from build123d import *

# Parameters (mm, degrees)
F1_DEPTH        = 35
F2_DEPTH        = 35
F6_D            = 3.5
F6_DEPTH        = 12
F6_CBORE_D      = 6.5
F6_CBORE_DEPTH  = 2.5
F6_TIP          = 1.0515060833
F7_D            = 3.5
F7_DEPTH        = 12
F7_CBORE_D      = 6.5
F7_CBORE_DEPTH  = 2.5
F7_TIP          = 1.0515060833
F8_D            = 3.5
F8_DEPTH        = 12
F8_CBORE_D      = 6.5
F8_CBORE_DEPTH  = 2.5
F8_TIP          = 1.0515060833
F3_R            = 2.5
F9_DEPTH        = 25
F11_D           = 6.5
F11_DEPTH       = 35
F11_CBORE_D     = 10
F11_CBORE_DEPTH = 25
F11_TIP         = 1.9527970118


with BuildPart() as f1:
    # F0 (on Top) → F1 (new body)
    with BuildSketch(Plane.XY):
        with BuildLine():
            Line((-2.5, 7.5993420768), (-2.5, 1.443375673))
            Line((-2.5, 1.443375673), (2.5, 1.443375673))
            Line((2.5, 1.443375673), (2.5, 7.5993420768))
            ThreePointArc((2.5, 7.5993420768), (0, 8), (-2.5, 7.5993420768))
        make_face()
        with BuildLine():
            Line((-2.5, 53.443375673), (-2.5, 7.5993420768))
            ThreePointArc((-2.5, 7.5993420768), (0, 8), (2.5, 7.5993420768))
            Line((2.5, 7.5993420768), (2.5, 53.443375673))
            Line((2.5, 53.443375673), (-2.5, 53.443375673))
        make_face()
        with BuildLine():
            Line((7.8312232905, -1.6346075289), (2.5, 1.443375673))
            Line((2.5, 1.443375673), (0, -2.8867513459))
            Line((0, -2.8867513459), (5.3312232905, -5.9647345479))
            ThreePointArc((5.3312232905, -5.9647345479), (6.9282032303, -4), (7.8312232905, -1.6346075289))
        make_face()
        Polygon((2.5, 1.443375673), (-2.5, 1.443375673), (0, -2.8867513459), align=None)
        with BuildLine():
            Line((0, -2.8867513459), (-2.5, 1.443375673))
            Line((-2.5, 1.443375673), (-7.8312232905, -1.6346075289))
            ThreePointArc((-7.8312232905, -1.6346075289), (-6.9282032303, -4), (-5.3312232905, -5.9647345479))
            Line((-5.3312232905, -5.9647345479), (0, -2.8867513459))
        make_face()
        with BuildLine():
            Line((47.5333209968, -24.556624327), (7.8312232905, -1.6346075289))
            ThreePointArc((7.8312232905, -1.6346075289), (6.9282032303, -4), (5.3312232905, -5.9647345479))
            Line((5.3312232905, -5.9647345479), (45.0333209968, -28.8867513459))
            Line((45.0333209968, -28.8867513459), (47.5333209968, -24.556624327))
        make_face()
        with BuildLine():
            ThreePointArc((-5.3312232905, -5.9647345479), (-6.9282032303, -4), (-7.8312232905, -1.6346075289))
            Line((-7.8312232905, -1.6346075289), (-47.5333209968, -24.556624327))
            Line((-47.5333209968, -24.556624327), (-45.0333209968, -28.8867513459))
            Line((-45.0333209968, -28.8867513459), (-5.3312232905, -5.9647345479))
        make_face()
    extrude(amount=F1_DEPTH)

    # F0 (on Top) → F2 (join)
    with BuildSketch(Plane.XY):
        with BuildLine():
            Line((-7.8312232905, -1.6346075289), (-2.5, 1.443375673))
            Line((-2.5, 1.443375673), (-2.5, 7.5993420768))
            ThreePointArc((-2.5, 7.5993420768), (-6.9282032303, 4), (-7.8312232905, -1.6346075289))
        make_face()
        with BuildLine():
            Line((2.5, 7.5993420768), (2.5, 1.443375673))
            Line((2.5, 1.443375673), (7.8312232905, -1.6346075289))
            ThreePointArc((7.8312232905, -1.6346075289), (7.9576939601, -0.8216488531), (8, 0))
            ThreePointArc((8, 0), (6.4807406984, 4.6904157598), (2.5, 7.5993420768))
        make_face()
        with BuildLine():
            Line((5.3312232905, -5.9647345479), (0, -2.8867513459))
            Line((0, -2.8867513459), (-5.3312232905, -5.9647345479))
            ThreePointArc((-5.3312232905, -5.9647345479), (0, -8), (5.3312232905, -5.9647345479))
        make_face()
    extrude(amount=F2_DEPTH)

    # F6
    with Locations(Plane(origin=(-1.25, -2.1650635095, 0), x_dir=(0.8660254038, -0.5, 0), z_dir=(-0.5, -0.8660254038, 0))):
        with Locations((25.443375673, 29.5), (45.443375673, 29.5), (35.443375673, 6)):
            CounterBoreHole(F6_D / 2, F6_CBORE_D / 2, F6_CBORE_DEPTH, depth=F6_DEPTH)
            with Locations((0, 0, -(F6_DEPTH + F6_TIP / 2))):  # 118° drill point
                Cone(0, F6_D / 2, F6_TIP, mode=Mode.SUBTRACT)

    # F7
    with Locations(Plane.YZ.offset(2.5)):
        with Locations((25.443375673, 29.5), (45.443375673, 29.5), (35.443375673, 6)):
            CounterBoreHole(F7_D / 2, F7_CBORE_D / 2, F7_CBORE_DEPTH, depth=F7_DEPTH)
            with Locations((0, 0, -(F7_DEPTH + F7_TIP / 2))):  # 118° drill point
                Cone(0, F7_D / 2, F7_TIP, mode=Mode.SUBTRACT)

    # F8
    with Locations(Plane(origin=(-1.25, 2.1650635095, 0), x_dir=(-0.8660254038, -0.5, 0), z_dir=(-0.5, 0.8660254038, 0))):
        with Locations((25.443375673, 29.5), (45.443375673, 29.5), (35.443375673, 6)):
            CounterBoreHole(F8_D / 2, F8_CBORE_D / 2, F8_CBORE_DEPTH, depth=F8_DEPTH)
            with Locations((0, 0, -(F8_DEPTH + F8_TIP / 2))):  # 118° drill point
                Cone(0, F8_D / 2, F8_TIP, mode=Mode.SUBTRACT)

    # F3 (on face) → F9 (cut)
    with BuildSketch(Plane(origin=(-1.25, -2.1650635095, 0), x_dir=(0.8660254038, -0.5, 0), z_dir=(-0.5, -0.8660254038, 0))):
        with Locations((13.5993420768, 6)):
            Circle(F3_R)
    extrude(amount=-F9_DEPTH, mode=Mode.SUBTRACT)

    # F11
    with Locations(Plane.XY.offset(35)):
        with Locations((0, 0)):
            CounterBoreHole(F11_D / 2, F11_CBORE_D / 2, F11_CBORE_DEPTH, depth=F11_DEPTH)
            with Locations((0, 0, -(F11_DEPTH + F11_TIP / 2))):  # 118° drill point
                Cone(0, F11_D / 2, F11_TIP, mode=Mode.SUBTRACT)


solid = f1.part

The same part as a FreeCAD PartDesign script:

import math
import FreeCAD as App
import Part
import Sketcher

V = App.Vector
Q = App.Units.Quantity


def add_polygon(sketch, points):
    """Adds a closed chain of lines whose ends are joined by coincident constraints."""
    first, n = sketch.GeometryCount, len(points)
    for a, b in zip(points, points[1:] + points[:1]):
        sketch.addGeometry(Part.LineSegment(App.Vector(*a, 0), App.Vector(*b, 0)), False)
    for i in range(n):
        sketch.addConstraint(Sketcher.Constraint("Coincident", first + i, 2, first + (i + 1) % n, 1))

doc = App.newDocument("Part")
body = doc.addObject("PartDesign::Body", "Body")

sketch1 = doc.addObject("Sketcher::SketchObject", "Sketch")
body.addObject(sketch1)
sketch1.AttachmentSupport = (doc.XY_Plane, [""])
sketch1.MapMode = "FlatFace"
add_polygon(sketch1, [(2.5, 1.443376), (2.5, 53.443376), (-2.5, 53.443376), (-2.5, 1.443376), (-7.831223, -1.634608), (-47.533321, -24.556624), (-45.033321, -28.886751), (-5.331223, -5.964735), (0, -2.886751), (5.331223, -5.964735), (45.033321, -28.886751), (47.533321, -24.556624), (7.831223, -1.634608)])
sketch1.addConstraint(Sketcher.Constraint("Vertical", 0))
sketch1.addConstraint(Sketcher.Constraint("Horizontal", 1))
sketch1.addConstraint(Sketcher.Constraint("Vertical", 2))
sketch1.addConstraint(Sketcher.Constraint("Symmetric", 6, 2, 8, 2, -2))
sketch1.addConstraint(Sketcher.Constraint("Symmetric", 5, 2, 9, 2, -2))
sketch1.addConstraint(Sketcher.Constraint("Symmetric", 4, 2, 10, 2, -2))
sketch1.addConstraint(Sketcher.Constraint("Symmetric", 3, 2, 11, 2, -2))
sketch1.addConstraint(Sketcher.Constraint("Symmetric", 2, 2, 12, 2, -2))
sketch1.addConstraint(Sketcher.Constraint("PointOnObject", 7, 2, -2))
sketch1.addConstraint(Sketcher.Constraint("Parallel", 3, 4))
sketch1.addConstraint(Sketcher.Constraint("Perpendicular", 4, 5))
sketch1.addConstraint(Sketcher.Constraint("Perpendicular", 5, 6))
sketch1.addConstraint(Sketcher.Constraint("Parallel", 6, 7))
sketch1.addConstraint(Sketcher.Constraint("Equal", 4, 6))
sketch1.addConstraint(Sketcher.Constraint("Equal", 3, 7))
sketch1.addConstraint(Sketcher.Constraint("DistanceX", 1, 2, 1, 1, Q("5 mm")))
sketch1.addConstraint(Sketcher.Constraint("DistanceY", 0, 1, 0, 2, Q("52 mm")))
sketch1.addConstraint(Sketcher.Constraint("Angle", 3, Q("-150 deg")))
sketch1.addConstraint(Sketcher.Constraint("DistanceY", 4, 2, 2, 2, Q("26 mm")))
sketch1.addConstraint(Sketcher.Constraint("DistanceY", 5, 2, -1, 1, Q("28.886751 mm")))
sketch1.addConstraint(Sketcher.Constraint("DistanceY", 6, 2, 2, 2, Q("7.40811 mm")))
pad1 = doc.addObject("PartDesign::Pad", "Pad")
body.addObject(pad1)
pad1.Profile = sketch1
pad1.Length = 35

sketch2 = doc.addObject("Sketcher::SketchObject", "Sketch001")
body.addObject(sketch2)
sketch2.AttachmentSupport = (doc.XY_Plane, [""])
sketch2.MapMode = "FlatFace"
sketch2.addGeometry(Part.LineSegment(V(-7.831223, -1.634608, 0), V(-2.5, 1.443376, 0)), False)
sketch2.addGeometry(Part.LineSegment(V(-2.5, 1.443376, 0), V(-2.5, 7.599342, 0)), False)
sketch2.addGeometry(Part.ArcOfCircle(Part.Circle(V(0, 0, 0), V(0, 0, 1), 8), math.radians(108.209957), math.radians(191.790043)), False)
sketch2.addGeometry(Part.LineSegment(V(2.5, 7.599342, 0), V(2.5, 1.443376, 0)), False)
sketch2.addGeometry(Part.LineSegment(V(2.5, 1.443376, 0), V(7.831223, -1.634608, 0)), False)
sketch2.addGeometry(Part.ArcOfCircle(Part.Circle(V(0, 0, 0), V(0, 0, 1), 8), math.radians(-11.790043), math.radians(0)), False)
sketch2.addGeometry(Part.ArcOfCircle(Part.Circle(V(0, 0, 0), V(0, 0, 1), 8), math.radians(0), math.radians(71.790043)), False)
sketch2.addGeometry(Part.LineSegment(V(5.331223, -5.964735, 0), V(0, -2.886751, 0)), False)
sketch2.addGeometry(Part.LineSegment(V(0, -2.886751, 0), V(-5.331223, -5.964735, 0)), False)
sketch2.addGeometry(Part.ArcOfCircle(Part.Circle(V(0, 0, 0), V(0, 0, 1), 8), math.radians(-131.790043), math.radians(-48.209957)), False)
sketch2.addConstraint(Sketcher.Constraint("Coincident", 0, 2, 1, 1))
sketch2.addConstraint(Sketcher.Constraint("Coincident", 1, 2, 2, 1))
sketch2.addConstraint(Sketcher.Constraint("Coincident", 2, 2, 0, 1))
sketch2.addConstraint(Sketcher.Constraint("Coincident", 3, 2, 4, 1))
sketch2.addConstraint(Sketcher.Constraint("Coincident", 4, 2, 5, 1))
sketch2.addConstraint(Sketcher.Constraint("Tangent", 5, 2, 6, 1))
sketch2.addConstraint(Sketcher.Constraint("Coincident", 6, 2, 3, 1))
sketch2.addConstraint(Sketcher.Constraint("Coincident", 7, 2, 8, 1))
sketch2.addConstraint(Sketcher.Constraint("Coincident", 8, 2, 9, 1))
sketch2.addConstraint(Sketcher.Constraint("Coincident", 9, 2, 7, 1))
sketch2.addConstraint(Sketcher.Constraint("Vertical", 1))
sketch2.addConstraint(Sketcher.Constraint("Vertical", 3))
sketch2.addConstraint(Sketcher.Constraint("Coincident", 2, 3, -1, 1))
sketch2.addConstraint(Sketcher.Constraint("Coincident", 5, 3, -1, 1))
sketch2.addConstraint(Sketcher.Constraint("Coincident", 9, 3, -1, 1))
sketch2.addConstraint(Sketcher.Constraint("Equal", 2, 5))
sketch2.addConstraint(Sketcher.Constraint("Equal", 5, 6))
sketch2.addConstraint(Sketcher.Constraint("Equal", 6, 9))
sketch2.addConstraint(Sketcher.Constraint("Symmetric", 0, 2, 3, 2, -2))
sketch2.addConstraint(Sketcher.Constraint("PointOnObject", 5, 2, -1))
sketch2.addConstraint(Sketcher.Constraint("PointOnObject", 7, 2, -2))
sketch2.addConstraint(Sketcher.Constraint("Parallel", 4, 7))
sketch2.addConstraint(Sketcher.Constraint("Parallel", 0, 8))
sketch2.addConstraint(Sketcher.Constraint("Horizontal", 2, 2, 4, 2))
sketch2.addConstraint(Sketcher.Constraint("Equal", 4, 7))
sketch2.addConstraint(Sketcher.Constraint("Radius", 2, Q("8 mm")))
sketch2.addConstraint(Sketcher.Constraint("Angle", 0, Q("30 deg")))
sketch2.addConstraint(Sketcher.Constraint("DistanceX", 0, 2, 3, 2, Q("5 mm")))
sketch2.addConstraint(Sketcher.Constraint("DistanceY", 1, 1, 1, 2, Q("6.155966 mm")))
pad2 = doc.addObject("PartDesign::Pad", "Pad001")
body.addObject(pad2)
pad2.Profile = sketch2
pad2.Length = 35

sketch3 = doc.addObject("Sketcher::SketchObject", "Sketch002")
body.addObject(sketch3)
sketch3.Placement = App.Placement(V(-1.25, -2.165064, 0), App.Rotation(V(0.866025404, -0.5, 0), V(0, 0, 1), V(-0.5, -0.866025404, 0), "ZXY"))
sketch3.addGeometry(Part.Circle(V(25.443376, 29.5, 0), V(0, 0, 1), 1.75), False)
sketch3.addGeometry(Part.Circle(V(45.443376, 29.5, 0), V(0, 0, 1), 1.75), False)
sketch3.addGeometry(Part.Circle(V(35.443376, 6, 0), V(0, 0, 1), 1.75), False)
sketch3.addConstraint(Sketcher.Constraint("Equal", 0, 1))
sketch3.addConstraint(Sketcher.Constraint("Equal", 1, 2))
sketch3.addConstraint(Sketcher.Constraint("Horizontal", 0, 3, 1, 3))
sketch3.addConstraint(Sketcher.Constraint("Diameter", 0, Q("3.5 mm")))
sketch3.addConstraint(Sketcher.Constraint("DistanceY", -1, 1, 2, 3, Q("6 mm")))
sketch3.addConstraint(Sketcher.Constraint("DistanceX", 0, 3, 1, 3, Q("20 mm")))
sketch3.addConstraint(Sketcher.Constraint("DistanceX", 2, 3, 1, 3, Q("10 mm")))
sketch3.addConstraint(Sketcher.Constraint("DistanceY", -1, 1, 0, 3, Q("29.5 mm")))
sketch3.addConstraint(Sketcher.Constraint("DistanceX", -1, 1, 0, 3, Q("25.443376 mm")))
doc.recompute()
hole = doc.addObject("PartDesign::Hole", "Hole")
body.addObject(hole)
hole.Profile = sketch3
hole.ThreadType = "None"
hole.Diameter = 3.5
hole.DepthType = "Dimension"
hole.Depth = 12
hole.DrillPoint = "Angled"
hole.DrillPointAngle = 118
hole.HoleCutType = "Counterbore"
hole.HoleCutDiameter = 6.5
hole.HoleCutDepth = 2.5

sketch4 = doc.addObject("Sketcher::SketchObject", "Sketch003")
body.addObject(sketch4)
sketch4.AttachmentSupport = (doc.YZ_Plane, [""])
sketch4.MapMode = "FlatFace"
sketch4.AttachmentOffset = App.Placement(V(0, 0, 2.5), App.Rotation())
sketch4.addGeometry(Part.Circle(V(25.443376, 29.5, 0), V(0, 0, 1), 1.75), False)
sketch4.addGeometry(Part.Circle(V(45.443376, 29.5, 0), V(0, 0, 1), 1.75), False)
sketch4.addGeometry(Part.Circle(V(35.443376, 6, 0), V(0, 0, 1), 1.75), False)
sketch4.addConstraint(Sketcher.Constraint("Equal", 0, 1))
sketch4.addConstraint(Sketcher.Constraint("Equal", 1, 2))
sketch4.addConstraint(Sketcher.Constraint("Horizontal", 0, 3, 1, 3))
sketch4.addConstraint(Sketcher.Constraint("Diameter", 0, Q("3.5 mm")))
sketch4.addConstraint(Sketcher.Constraint("DistanceY", -1, 1, 2, 3, Q("6 mm")))
sketch4.addConstraint(Sketcher.Constraint("DistanceX", 0, 3, 1, 3, Q("20 mm")))
sketch4.addConstraint(Sketcher.Constraint("DistanceX", 0, 3, 2, 3, Q("10 mm")))
sketch4.addConstraint(Sketcher.Constraint("DistanceY", -1, 1, 0, 3, Q("29.5 mm")))
sketch4.addConstraint(Sketcher.Constraint("DistanceX", -1, 1, 0, 3, Q("25.443376 mm")))
doc.recompute()
hole2 = doc.addObject("PartDesign::Hole", "Hole001")
body.addObject(hole2)
hole2.Profile = sketch4
hole2.ThreadType = "None"
hole2.Diameter = 3.5
hole2.DepthType = "Dimension"
hole2.Depth = 12
hole2.DrillPoint = "Angled"
hole2.DrillPointAngle = 118
hole2.HoleCutType = "Counterbore"
hole2.HoleCutDiameter = 6.5
hole2.HoleCutDepth = 2.5

sketch5 = doc.addObject("Sketcher::SketchObject", "Sketch004")
body.addObject(sketch5)
sketch5.Placement = App.Placement(V(-1.25, 2.165064, 0), App.Rotation(V(-0.866025404, -0.5, 0), V(0, 0, 1), V(-0.5, 0.866025404, 0), "ZXY"))
sketch5.addGeometry(Part.Circle(V(25.443376, 29.5, 0), V(0, 0, 1), 1.75), False)
sketch5.addGeometry(Part.Circle(V(45.443376, 29.5, 0), V(0, 0, 1), 1.75), False)
sketch5.addGeometry(Part.Circle(V(35.443376, 6, 0), V(0, 0, 1), 1.75), False)
sketch5.addConstraint(Sketcher.Constraint("Equal", 0, 1))
sketch5.addConstraint(Sketcher.Constraint("Equal", 1, 2))
sketch5.addConstraint(Sketcher.Constraint("Horizontal", 0, 3, 1, 3))
sketch5.addConstraint(Sketcher.Constraint("Diameter", 0, Q("3.5 mm")))
sketch5.addConstraint(Sketcher.Constraint("DistanceY", -1, 1, 2, 3, Q("6 mm")))
sketch5.addConstraint(Sketcher.Constraint("DistanceX", 0, 3, 1, 3, Q("20 mm")))
sketch5.addConstraint(Sketcher.Constraint("DistanceX", 2, 3, 1, 3, Q("10 mm")))
sketch5.addConstraint(Sketcher.Constraint("DistanceY", -1, 1, 0, 3, Q("29.5 mm")))
sketch5.addConstraint(Sketcher.Constraint("DistanceX", -1, 1, 0, 3, Q("25.443376 mm")))
doc.recompute()
hole3 = doc.addObject("PartDesign::Hole", "Hole002")
body.addObject(hole3)
hole3.Profile = sketch5
hole3.ThreadType = "None"
hole3.Diameter = 3.5
hole3.DepthType = "Dimension"
hole3.Depth = 12
hole3.DrillPoint = "Angled"
hole3.DrillPointAngle = 118
hole3.HoleCutType = "Counterbore"
hole3.HoleCutDiameter = 6.5
hole3.HoleCutDepth = 2.5

sketch6 = doc.addObject("Sketcher::SketchObject", "Sketch005")
body.addObject(sketch6)
sketch6.Placement = App.Placement(V(-1.25, -2.165064, 0), App.Rotation(V(0.866025404, -0.5, 0), V(0, 0, 1), V(-0.5, -0.866025404, 0), "ZXY"))
sketch6.addGeometry(Part.Circle(V(13.599342, 6, 0), V(0, 0, 1), 2.5), False)
sketch6.addConstraint(Sketcher.Constraint("Diameter", 0, Q("5 mm")))
sketch6.addConstraint(Sketcher.Constraint("DistanceY", -1, 1, 0, 3, Q("6 mm")))
sketch6.addConstraint(Sketcher.Constraint("DistanceX", -1, 1, 0, 3, Q("13.599342 mm")))
pocket1 = doc.addObject("PartDesign::Pocket", "Pocket")
body.addObject(pocket1)
pocket1.Profile = sketch6
pocket1.Length = 25

sketch7 = doc.addObject("Sketcher::SketchObject", "Sketch006")
body.addObject(sketch7)
sketch7.AttachmentSupport = (doc.XY_Plane, [""])
sketch7.MapMode = "FlatFace"
sketch7.AttachmentOffset = App.Placement(V(0, 0, 35), App.Rotation())
sketch7.addGeometry(Part.Circle(V(0, 0, 0), V(0, 0, 1), 3.25), False)
sketch7.addConstraint(Sketcher.Constraint("Coincident", 0, 3, -1, 1))
sketch7.addConstraint(Sketcher.Constraint("Diameter", 0, Q("6.5 mm")))
doc.recompute()
hole4 = doc.addObject("PartDesign::Hole", "Hole003")
body.addObject(hole4)
hole4.Profile = sketch7
hole4.ThreadType = "None"
hole4.Diameter = 6.5
hole4.DepthType = "Dimension"
hole4.Depth = 35
hole4.DrillPoint = "Angled"
hole4.DrillPointAngle = 118
hole4.HoleCutType = "Counterbore"
hole4.HoleCutDiameter = 10
hole4.HoleCutDepth = 25

doc.recompute()
